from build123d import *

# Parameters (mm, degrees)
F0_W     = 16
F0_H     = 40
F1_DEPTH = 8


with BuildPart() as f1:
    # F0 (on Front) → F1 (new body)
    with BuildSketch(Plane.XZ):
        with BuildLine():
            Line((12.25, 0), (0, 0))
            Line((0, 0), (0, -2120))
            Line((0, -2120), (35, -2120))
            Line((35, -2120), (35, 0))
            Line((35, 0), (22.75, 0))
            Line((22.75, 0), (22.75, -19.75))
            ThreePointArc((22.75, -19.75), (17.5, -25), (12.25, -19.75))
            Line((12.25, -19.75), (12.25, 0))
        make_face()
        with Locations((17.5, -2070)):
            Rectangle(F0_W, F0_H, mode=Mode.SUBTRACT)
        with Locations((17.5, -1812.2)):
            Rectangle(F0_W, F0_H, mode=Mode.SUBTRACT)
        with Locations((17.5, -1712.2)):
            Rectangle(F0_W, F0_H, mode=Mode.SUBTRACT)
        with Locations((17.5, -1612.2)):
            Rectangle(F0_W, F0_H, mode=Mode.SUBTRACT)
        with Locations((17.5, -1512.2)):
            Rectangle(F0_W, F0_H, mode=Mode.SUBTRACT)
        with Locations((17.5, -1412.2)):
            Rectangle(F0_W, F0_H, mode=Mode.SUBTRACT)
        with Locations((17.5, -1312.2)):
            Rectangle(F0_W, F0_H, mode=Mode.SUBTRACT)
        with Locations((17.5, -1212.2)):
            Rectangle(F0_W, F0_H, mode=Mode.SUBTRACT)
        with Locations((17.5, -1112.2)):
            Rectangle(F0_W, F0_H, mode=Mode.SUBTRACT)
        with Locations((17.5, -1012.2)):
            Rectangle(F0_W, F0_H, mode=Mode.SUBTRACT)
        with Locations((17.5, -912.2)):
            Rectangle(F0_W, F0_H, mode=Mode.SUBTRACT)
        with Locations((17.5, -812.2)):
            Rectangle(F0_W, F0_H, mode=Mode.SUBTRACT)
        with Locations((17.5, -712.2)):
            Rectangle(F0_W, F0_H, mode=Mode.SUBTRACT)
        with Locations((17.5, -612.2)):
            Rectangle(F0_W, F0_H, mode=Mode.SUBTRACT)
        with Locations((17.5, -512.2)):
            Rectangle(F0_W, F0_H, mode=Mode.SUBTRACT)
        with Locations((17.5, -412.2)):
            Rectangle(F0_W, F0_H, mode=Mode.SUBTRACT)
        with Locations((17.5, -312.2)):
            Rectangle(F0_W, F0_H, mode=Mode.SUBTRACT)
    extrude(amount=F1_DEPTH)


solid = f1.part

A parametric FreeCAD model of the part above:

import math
import FreeCAD as App
import Part
import Sketcher

V = App.Vector


def add_polygon(sketch, points):
    """Adds a closed chain of lines whose ends are joined by coincident constraints."""
    first, n = sketch.GeometryCount, len(points)
    for a, b in zip(points, points[1:] + points[:1]):
        sketch.addGeometry(Part.LineSegment(App.Vector(*a, 0), App.Vector(*b, 0)), False)
    for i in range(n):
        sketch.addConstraint(Sketcher.Constraint("Coincident", first + i, 2, first + (i + 1) % n, 1))

doc = App.newDocument("Part")
params = doc.addObject("Spreadsheet::Sheet", "Params")
for row, (alias, value) in enumerate([
    ("sketch1_width", "35 mm"),
    ("sketch1_width2", "16 mm"),
    ("sketch1_height", "2120 mm"),
    ("sketch1_height2", "40 mm"),
    ("sketch1_radius", "5.25 mm"),
    ("pad1_length", "8 mm"),
], start=1):
    params.set(f"A{row}", alias)
    params.set(f"B{row}", "=" + value)
    params.setAlias(f"B{row}", alias)

body = doc.addObject("PartDesign::Body", "Body")

sketch1 = doc.addObject("Sketcher::SketchObject", "Sketch")
body.addObject(sketch1)
sketch1.AttachmentSupport = (doc.XZ_Plane, [""])
sketch1.MapMode = "FlatFace"
sketch1.addGeometry(Part.LineSegment(V(12, 0, 0), V(0, 0, 0)), False)
sketch1.addGeometry(Part.LineSegment(V(0, 0, 0), V(0, -2120, 0)), False)
sketch1.addGeometry(Part.LineSegment(V(0, -2120, 0), V(35, -2120, 0)), False)
sketch1.addGeometry(Part.LineSegment(V(35, -2120, 0), V(35, 0, 0)), False)
sketch1.addGeometry(Part.LineSegment(V(35, 0, 0), V(23, 0, 0)), False)
sketch1.addGeometry(Part.LineSegment(V(23, 0, 0), V(23, -20, 0)), False)
sketch1.addGeometry(Part.ArcOfCircle(Part.Circle(V(18, -20, 0), V(0, 0, 1), 5), math.radians(180), math.radians(360)), False)
sketch1.addGeometry(Part.LineSegment(V(12, -20, 0), V(12, 0, 0)), False)
add_polygon(sketch1, [(26, -2090), (10, -2090), (10, -2050), (26, -2050)])
add_polygon(sketch1, [(26, -1832), (10, -1832), (10, -1792), (26, -1792)])
add_polygon(sketch1, [(26, -1732), (10, -1732), (10, -1692), (26, -1692)])
add_polygon(sketch1, [(26, -1632), (10, -1632), (10, -1592), (26, -1592)])
add_polygon(sketch1, [(26, -1532), (10, -1532), (10, -1492), (26, -1492)])
add_polygon(sketch1, [(26, -1432), (10, -1432), (10, -1392), (26, -1392)])
add_polygon(sketch1, [(26, -1332), (10, -1332), (10, -1292), (26, -1292)])
add_polygon(sketch1, [(26, -1232), (10, -1232), (10, -1192), (26, -1192)])
add_polygon(sketch1, [(26, -1132), (10, -1132), (10, -1092), (26, -1092)])
add_polygon(sketch1, [(26, -1032), (10, -1032), (10, -992), (26, -992)])
add_polygon(sketch1, [(26, -932), (10, -932), (10, -892), (26, -892)])
add_polygon(sketch1, [(26, -832), (10, -832), (10, -792), (26, -792)])
add_polygon(sketch1, [(26, -732), (10, -732), (10, -692), (26, -692)])
add_polygon(sketch1, [(26, -632), (10, -632), (10, -592), (26, -592)])
add_polygon(sketch1, [(26, -532), (10, -532), (10, -492), (26, -492)])
add_polygon(sketch1, [(26, -432), (10, -432), (10, -392), (26, -392)])
add_polygon(sketch1, [(26, -332), (10, -332), (10, -292), (26, -292)])
sketch1.addConstraint([
    Sketcher.Constraint("Coincident", 0, 2, 1, 1),
    Sketcher.Constraint("Coincident", 1, 2, 2, 1),
    Sketcher.Constraint("Coincident", 2, 2, 3, 1),
    Sketcher.Constraint("Coincident", 3, 2, 4, 1),
    Sketcher.Constraint("Coincident", 4, 2, 5, 1),
    Sketcher.Constraint("Tangent", 5, 2, 6, 2),
    Sketcher.Constraint("Tangent", 6, 1, 7, 1),
    Sketcher.Constraint("Coincident", 7, 2, 0, 1),
    Sketcher.Constraint("Horizontal", 0),
    Sketcher.Constraint("Vertical", 1),
    Sketcher.Constraint("Horizontal", 2),
    Sketcher.Constraint("Vertical", 3),
    Sketcher.Constraint("Horizontal", 4),
    Sketcher.Constraint("Vertical", 5),
    Sketcher.Constraint("Vertical", 7),
    Sketcher.Constraint("Horizontal", 8),
    Sketcher.Constraint("Vertical", 9),
    Sketcher.Constraint("Horizontal", 10),
    Sketcher.Constraint("Vertical", 11),
    Sketcher.Constraint("Horizontal", 12),
    Sketcher.Constraint("Vertical", 13),
    Sketcher.Constraint("Horizontal", 14),
    Sketcher.Constraint("Vertical", 15),
    Sketcher.Constraint("Horizontal", 16),
    Sketcher.Constraint("Vertical", 17),
    Sketcher.Constraint("Horizontal", 18),
    Sketcher.Constraint("Vertical", 19),
    Sketcher.Constraint("Horizontal", 20),
    Sketcher.Constraint("Vertical", 21),
    Sketcher.Constraint("Horizontal", 22),
    Sketcher.Constraint("Vertical", 23),
    Sketcher.Constraint("Horizontal", 24),
    Sketcher.Constraint("Vertical", 25),
    Sketcher.Constraint("Horizontal", 26),
    Sketcher.Constraint("Vertical", 27),
    Sketcher.Constraint("Horizontal", 28),
    Sketcher.Constraint("Vertical", 29),
    Sketcher.Constraint("Horizontal", 30),
    Sketcher.Constraint("Vertical", 31),
    Sketcher.Constraint("Horizontal", 32),
    Sketcher.Constraint("Vertical", 33),
    Sketcher.Constraint("Horizontal", 34),
    Sketcher.Constraint("Vertical", 35),
    Sketcher.Constraint("Horizontal", 36),
    Sketcher.Constraint("Vertical", 37),
    Sketcher.Constraint("Horizontal", 38),
    Sketcher.Constraint("Vertical", 39),
    Sketcher.Constraint("Horizontal", 40),
    Sketcher.Constraint("Vertical", 41),
    Sketcher.Constraint("Horizontal", 42),
    Sketcher.Constraint("Vertical", 43),
    Sketcher.Constraint("Horizontal", 44),
    Sketcher.Constraint("Vertical", 45),
    Sketcher.Constraint("Horizontal", 46),
    Sketcher.Constraint("Vertical", 47),
    Sketcher.Constraint("Horizontal", 48),
    Sketcher.Constraint("Vertical", 49),
    Sketcher.Constraint("Horizontal", 50),
    Sketcher.Constraint("Vertical", 51),
    Sketcher.Constraint("Horizontal", 52),
    Sketcher.Constraint("Vertical", 53),
    Sketcher.Constraint("Horizontal", 54),
    Sketcher.Constraint("Vertical", 55),
    Sketcher.Constraint("Horizontal", 56),
    Sketcher.Constraint("Vertical", 57),
    Sketcher.Constraint("Horizontal", 58),
    Sketcher.Constraint("Vertical", 59),
    Sketcher.Constraint("Horizontal", 60),
    Sketcher.Constraint("Vertical", 61),
    Sketcher.Constraint("Horizontal", 62),
    Sketcher.Constraint("Vertical", 63),
    Sketcher.Constraint("Horizontal", 64),
    Sketcher.Constraint("Vertical", 65),
    Sketcher.Constraint("Horizontal", 66),
    Sketcher.Constraint("Vertical", 67),
    Sketcher.Constraint("Horizontal", 68),
    Sketcher.Constraint("Vertical", 69),
    Sketcher.Constraint("Horizontal", 70),
    Sketcher.Constraint("Vertical", 71),
    Sketcher.Constraint("Horizontal", 72),
    Sketcher.Constraint("Vertical", 73),
    Sketcher.Constraint("Horizontal", 74),
    Sketcher.Constraint("Vertical", 75),
    Sketcher.Constraint("Coincident", 0, 2, -1, 1),
    Sketcher.Constraint("PointOnObject", 3, 2, -1),
    Sketcher.Constraint("Vertical", 9, 2, 12, 2),
    Sketcher.Constraint("Vertical", 11, 2, 14, 2),
    Sketcher.Constraint("Vertical", 13, 2, 16, 2),
    Sketcher.Constraint("Vertical", 15, 2, 18, 2),
    Sketcher.Constraint("Vertical", 17, 2, 20, 2),
    Sketcher.Constraint("Vertical", 19, 2, 22, 2),
    Sketcher.Constraint("Vertical", 21, 2, 24, 2),
    Sketcher.Constraint("Vertical", 23, 2, 26, 2),
    Sketcher.Constraint("Vertical", 25, 2, 28, 2),
    Sketcher.Constraint("Vertical", 27, 2, 30, 2),
    Sketcher.Constraint("Vertical", 29, 2, 32, 2),
    Sketcher.Constraint("Vertical", 31, 2, 34, 2),
    Sketcher.Constraint("Vertical", 33, 2, 36, 2),
    Sketcher.Constraint("Vertical", 35, 2, 38, 2),
    Sketcher.Constraint("Vertical", 37, 2, 40, 2),
    Sketcher.Constraint("Vertical", 39, 2, 42, 2),
    Sketcher.Constraint("Vertical", 41, 2, 44, 2),
    Sketcher.Constraint("Vertical", 43, 2, 46, 2),
    Sketcher.Constraint("Vertical", 45, 2, 48, 2),
    Sketcher.Constraint("Vertical", 47, 2, 50, 2),
    Sketcher.Constraint("Vertical", 49, 2, 52, 2),
    Sketcher.Constraint("Vertical", 51, 2, 54, 2),
    Sketcher.Constraint("Vertical", 53, 2, 56, 2),
    Sketcher.Constraint("Vertical", 55, 2, 58, 2),
    Sketcher.Constraint("Vertical", 57, 2, 60, 2),
    Sketcher.Constraint("Vertical", 59, 2, 62, 2),
    Sketcher.Constraint("Vertical", 61, 2, 64, 2),
    Sketcher.Constraint("Vertical", 63, 2, 66, 2),
    Sketcher.Constraint("Vertical", 65, 2, 68, 2),
    Sketcher.Constraint("Vertical", 67, 2, 70, 2),
    Sketcher.Constraint("Vertical", 69, 2, 72, 2),
    Sketcher.Constraint("Vertical", 71, 2, 74, 2),
    Sketcher.Constraint("Equal", 0, 4),
    Sketcher.Constraint("Equal", 11, 13),
    Sketcher.Constraint("Equal", 15, 17),
    Sketcher.Constraint("Equal", 19, 21),
    Sketcher.Constraint("Equal", 23, 25),
    Sketcher.Constraint("Equal", 27, 29),
    Sketcher.Constraint("Equal", 31, 33),
    Sketcher.Constraint("Equal", 35, 37),
    Sketcher.Constraint("Equal", 39, 41),
    Sketcher.Constraint("Equal", 43, 45),
    Sketcher.Constraint("Equal", 47, 49),
    Sketcher.Constraint("Equal", 51, 53),
    Sketcher.Constraint("Equal", 55, 57),
    Sketcher.Constraint("Equal", 59, 61),
    Sketcher.Constraint("Equal", 63, 65),
    Sketcher.Constraint("Equal", 67, 69),
    Sketcher.Constraint("Equal", 71, 73),
    Sketcher.Constraint("DistanceX", 2, 1, 2, 2, 35.0),
    Sketcher.Constraint("DistanceX", 8, 2, 8, 1, 16.0),
    Sketcher.Constraint("DistanceY", 1, 2, 1, 1, 2120.0),
    Sketcher.Constraint("DistanceY", 9, 1, 9, 2, 40.0),
    Sketcher.Constraint("Radius", 6, 5.25),
    Sketcher.Constraint("DistanceY", 8, 2, -1, 1, 2090.0),
    Sketcher.Constraint("DistanceY", 5, 2, 5, 1, 19.75),
    Sketcher.Constraint("DistanceX", -1, 1, 8, 2, 9.5),
    Sketcher.Constraint("DistanceY", 12, 2, -1, 1, 1832.2),
    Sketcher.Constraint("DistanceY", 16, 2, -1, 1, 1732.2),
    Sketcher.Constraint("DistanceY", 20, 2, -1, 1, 1632.2),
    Sketcher.Constraint("DistanceY", 24, 2, -1, 1, 1532.2),
    Sketcher.Constraint("DistanceY", 28, 2, -1, 1, 1432.2),
    Sketcher.Constraint("DistanceY", 32, 2, -1, 1, 1332.2),
    Sketcher.Constraint("DistanceY", 36, 2, -1, 1, 1232.2),
    Sketcher.Constraint("DistanceY", 40, 2, -1, 1, 1132.2),
    Sketcher.Constraint("DistanceY", 44, 2, -1, 1, 1032.2),
    Sketcher.Constraint("DistanceY", 48, 2, -1, 1, 932.2),
    Sketcher.Constraint("DistanceY", 52, 2, -1, 1, 832.2),
    Sketcher.Constraint("DistanceY", 56, 2, -1, 1, 732.2),
    Sketcher.Constraint("DistanceY", 60, 2, -1, 1, 632.2),
    Sketcher.Constraint("DistanceY", 64, 2, -1, 1, 532.2),
    Sketcher.Constraint("DistanceY", 68, 2, -1, 1, 432.2),
    Sketcher.Constraint("DistanceY", 72, 2, -1, 1, 332.2),
])
sketch1.setExpression("Constraints[202]", "Params.sketch1_width")
sketch1.setExpression("Constraints[203]", "Params.sketch1_width2")
sketch1.setExpression("Constraints[204]", "Params.sketch1_height")
sketch1.setExpression("Constraints[205]", "Params.sketch1_height2")
sketch1.setExpression("Constraints[206]", "Params.sketch1_radius")
pad1 = doc.addObject("PartDesign::Pad", "Pad")
body.addObject(pad1)
pad1.Profile = sketch1
pad1.setExpression("Length", "Params.pad1_length")

doc.recompute()
